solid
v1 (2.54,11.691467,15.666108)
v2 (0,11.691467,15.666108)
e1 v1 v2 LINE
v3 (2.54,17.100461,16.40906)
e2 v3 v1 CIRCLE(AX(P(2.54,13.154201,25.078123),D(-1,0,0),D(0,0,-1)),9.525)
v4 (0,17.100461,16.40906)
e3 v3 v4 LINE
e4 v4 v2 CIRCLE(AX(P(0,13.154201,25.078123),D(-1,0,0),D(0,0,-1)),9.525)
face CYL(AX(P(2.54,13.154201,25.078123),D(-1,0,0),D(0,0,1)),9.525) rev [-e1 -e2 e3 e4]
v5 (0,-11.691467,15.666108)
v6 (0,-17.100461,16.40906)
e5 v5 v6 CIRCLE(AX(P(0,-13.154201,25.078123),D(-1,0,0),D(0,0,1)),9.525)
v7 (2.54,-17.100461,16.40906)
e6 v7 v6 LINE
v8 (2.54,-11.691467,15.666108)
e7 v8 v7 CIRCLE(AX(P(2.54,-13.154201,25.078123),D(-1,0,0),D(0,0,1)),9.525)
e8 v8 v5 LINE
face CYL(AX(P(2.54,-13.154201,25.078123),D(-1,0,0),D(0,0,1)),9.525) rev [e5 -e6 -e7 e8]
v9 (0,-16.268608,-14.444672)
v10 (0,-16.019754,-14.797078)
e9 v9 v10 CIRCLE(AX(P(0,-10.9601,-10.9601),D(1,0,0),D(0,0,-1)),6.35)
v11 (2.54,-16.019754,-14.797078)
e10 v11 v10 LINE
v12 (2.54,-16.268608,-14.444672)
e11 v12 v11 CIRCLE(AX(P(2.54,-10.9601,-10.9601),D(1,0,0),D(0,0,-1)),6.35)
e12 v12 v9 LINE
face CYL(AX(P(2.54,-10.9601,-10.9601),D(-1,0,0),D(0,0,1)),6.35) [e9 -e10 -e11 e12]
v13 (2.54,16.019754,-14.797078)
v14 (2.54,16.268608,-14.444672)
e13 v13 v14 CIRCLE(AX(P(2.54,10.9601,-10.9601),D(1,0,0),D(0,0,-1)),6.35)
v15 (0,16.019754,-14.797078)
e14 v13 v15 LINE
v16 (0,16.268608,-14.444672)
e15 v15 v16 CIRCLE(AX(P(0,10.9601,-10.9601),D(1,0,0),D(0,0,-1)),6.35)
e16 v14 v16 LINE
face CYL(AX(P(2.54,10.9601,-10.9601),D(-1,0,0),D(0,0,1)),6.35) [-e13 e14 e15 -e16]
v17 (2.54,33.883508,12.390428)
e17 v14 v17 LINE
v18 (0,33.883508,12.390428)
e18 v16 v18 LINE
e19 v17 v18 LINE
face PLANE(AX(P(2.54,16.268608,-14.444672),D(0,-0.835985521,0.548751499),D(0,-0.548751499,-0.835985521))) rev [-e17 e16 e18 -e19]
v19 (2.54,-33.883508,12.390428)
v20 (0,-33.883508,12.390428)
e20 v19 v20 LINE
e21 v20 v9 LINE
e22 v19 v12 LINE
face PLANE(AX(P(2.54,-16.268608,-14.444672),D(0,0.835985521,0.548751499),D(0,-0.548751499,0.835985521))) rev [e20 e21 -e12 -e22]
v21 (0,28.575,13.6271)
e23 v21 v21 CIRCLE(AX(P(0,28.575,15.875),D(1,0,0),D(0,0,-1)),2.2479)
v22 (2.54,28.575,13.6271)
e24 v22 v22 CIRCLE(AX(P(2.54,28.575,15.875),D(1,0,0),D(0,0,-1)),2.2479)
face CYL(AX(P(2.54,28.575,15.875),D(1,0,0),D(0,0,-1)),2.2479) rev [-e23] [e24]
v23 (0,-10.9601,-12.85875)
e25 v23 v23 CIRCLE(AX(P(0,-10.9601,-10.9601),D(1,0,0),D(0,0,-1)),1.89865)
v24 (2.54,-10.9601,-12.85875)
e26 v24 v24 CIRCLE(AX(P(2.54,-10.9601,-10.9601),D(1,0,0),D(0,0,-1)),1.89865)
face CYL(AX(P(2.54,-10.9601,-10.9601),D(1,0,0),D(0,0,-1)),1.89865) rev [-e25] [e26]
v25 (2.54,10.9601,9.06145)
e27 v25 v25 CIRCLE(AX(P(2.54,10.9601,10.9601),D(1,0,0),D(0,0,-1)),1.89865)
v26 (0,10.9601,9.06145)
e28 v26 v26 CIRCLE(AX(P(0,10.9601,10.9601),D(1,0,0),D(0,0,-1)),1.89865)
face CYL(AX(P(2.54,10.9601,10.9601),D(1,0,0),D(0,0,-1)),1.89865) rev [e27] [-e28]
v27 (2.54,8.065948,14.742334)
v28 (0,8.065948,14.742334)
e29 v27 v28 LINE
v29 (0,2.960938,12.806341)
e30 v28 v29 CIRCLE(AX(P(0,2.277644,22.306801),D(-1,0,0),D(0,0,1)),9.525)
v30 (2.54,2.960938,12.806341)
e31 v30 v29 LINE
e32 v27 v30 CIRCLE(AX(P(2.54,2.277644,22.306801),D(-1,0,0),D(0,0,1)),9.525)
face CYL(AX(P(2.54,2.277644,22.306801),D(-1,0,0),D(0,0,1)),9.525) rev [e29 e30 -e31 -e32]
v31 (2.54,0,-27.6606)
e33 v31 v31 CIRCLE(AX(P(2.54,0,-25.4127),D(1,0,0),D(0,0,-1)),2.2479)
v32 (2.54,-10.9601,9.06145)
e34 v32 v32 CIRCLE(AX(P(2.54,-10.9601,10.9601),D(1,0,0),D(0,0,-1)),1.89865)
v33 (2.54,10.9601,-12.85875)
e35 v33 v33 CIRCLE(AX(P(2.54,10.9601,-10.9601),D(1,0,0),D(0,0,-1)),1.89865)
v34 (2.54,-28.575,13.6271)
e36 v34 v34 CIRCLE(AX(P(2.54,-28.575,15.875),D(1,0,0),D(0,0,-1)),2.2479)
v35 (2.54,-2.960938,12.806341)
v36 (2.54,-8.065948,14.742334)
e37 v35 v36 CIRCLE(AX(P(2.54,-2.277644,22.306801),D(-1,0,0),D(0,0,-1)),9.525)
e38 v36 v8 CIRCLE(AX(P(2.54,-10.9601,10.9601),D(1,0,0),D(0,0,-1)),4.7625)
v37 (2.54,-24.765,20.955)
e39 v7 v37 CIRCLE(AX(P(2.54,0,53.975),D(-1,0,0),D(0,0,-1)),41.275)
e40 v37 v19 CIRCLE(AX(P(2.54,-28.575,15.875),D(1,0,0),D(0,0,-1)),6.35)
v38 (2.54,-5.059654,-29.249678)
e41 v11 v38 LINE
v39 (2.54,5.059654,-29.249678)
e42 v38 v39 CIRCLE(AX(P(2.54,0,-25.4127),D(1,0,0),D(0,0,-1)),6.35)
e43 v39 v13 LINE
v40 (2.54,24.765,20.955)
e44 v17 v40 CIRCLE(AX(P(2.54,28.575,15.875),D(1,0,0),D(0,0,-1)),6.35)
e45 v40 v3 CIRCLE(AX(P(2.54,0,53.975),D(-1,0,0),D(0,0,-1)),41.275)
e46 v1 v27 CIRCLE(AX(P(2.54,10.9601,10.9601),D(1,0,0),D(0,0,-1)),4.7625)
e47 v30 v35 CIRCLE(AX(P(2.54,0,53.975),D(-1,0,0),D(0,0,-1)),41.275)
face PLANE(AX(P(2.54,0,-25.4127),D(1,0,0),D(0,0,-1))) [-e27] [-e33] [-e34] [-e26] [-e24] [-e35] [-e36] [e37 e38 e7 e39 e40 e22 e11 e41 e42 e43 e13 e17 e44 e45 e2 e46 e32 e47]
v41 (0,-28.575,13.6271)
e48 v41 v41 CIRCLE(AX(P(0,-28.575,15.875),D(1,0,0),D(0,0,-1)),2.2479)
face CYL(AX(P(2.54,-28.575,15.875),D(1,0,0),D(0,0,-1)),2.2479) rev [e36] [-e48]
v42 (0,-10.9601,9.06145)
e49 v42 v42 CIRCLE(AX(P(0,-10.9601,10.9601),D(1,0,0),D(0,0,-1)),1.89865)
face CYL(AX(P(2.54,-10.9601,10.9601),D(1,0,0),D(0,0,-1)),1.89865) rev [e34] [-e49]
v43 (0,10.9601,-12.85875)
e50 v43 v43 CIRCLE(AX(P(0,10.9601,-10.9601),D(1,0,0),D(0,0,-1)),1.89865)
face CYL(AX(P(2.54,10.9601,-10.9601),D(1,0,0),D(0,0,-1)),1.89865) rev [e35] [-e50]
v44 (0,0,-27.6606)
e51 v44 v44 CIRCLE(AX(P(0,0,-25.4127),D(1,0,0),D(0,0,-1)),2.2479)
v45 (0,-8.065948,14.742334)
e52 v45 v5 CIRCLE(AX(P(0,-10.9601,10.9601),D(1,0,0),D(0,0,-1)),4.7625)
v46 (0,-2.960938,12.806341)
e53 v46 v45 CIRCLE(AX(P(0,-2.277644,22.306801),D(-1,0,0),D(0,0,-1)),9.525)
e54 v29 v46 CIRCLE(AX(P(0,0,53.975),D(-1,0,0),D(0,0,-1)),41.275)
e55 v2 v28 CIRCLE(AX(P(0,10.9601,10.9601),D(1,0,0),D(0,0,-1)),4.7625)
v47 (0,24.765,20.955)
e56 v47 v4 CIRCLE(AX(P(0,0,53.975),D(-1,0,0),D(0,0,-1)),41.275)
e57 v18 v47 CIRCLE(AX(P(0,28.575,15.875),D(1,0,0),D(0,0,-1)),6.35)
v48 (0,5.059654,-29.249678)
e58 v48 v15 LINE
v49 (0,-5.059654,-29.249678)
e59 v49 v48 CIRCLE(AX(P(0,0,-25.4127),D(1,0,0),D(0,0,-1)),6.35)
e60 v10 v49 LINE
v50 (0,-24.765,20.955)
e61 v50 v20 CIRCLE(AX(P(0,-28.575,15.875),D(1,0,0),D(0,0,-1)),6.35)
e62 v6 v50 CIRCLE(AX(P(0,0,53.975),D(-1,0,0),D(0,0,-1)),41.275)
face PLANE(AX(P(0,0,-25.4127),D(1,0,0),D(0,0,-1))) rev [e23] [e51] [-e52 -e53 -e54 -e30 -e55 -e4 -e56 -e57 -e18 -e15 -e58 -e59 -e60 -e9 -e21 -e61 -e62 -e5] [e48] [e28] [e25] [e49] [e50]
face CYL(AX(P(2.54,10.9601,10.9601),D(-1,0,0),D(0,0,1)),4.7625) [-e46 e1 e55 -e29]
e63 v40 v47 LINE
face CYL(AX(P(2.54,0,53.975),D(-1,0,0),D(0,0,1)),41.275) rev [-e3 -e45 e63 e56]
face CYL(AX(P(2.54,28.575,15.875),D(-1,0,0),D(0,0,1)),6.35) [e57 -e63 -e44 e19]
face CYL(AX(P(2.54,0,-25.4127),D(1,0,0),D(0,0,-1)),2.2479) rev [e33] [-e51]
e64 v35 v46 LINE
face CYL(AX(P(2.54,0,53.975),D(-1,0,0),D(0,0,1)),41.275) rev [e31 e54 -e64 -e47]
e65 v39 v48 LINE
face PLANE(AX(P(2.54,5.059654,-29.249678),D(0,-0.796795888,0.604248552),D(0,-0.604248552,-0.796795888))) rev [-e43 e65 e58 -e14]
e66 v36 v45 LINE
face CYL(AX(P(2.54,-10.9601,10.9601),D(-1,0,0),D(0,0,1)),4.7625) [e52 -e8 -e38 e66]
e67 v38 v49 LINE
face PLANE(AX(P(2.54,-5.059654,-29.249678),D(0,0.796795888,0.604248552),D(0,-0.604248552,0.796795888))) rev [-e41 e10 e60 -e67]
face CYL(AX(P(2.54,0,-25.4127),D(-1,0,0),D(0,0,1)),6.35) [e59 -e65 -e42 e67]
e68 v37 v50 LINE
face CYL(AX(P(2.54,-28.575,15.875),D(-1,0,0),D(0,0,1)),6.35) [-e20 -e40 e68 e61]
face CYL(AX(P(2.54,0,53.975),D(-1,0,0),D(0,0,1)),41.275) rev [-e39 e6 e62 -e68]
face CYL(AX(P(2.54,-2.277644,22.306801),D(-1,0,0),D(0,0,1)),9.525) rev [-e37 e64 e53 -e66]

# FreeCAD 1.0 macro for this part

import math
import FreeCAD as App
import Part
import Sketcher
Q = App.Units.Quantity

doc = App.newDocument("Part")
body = doc.addObject("PartDesign::Body", "Body")

# Sketch on YZ plane
sketch1 = doc.addObject("Sketcher::SketchObject", "Sketch")
body.addObject(sketch1)
sketch1.AttachmentSupport = (doc.YZ_Plane, [""])
sketch1.MapMode = "FlatFace"
sketch1.addGeometry([
    Part.LineSegment(App.Vector(5.06, -29.25, 0), App.Vector(16.02, -14.8, 0)),  # 0
    Part.ArcOfCircle(Part.Circle(App.Vector(10.96, -10.96, 0), App.Vector(0, 0, 1), 6.35), math.radians(-37.17), math.radians(-33.28)),  # 1
    Part.LineSegment(App.Vector(16.27, -14.44, 0), App.Vector(33.88, 12.39, 0)),  # 2
    Part.ArcOfCircle(Part.Circle(App.Vector(28.57, 15.88, 0), App.Vector(0, 0, 1), 6.35), math.radians(-33), math.radians(127)),  # 3
    Part.ArcOfCircle(Part.Circle(App.Vector(0, 53.98, 0), App.Vector(0, 0, 1), 41.28), math.radians(-65.52), math.radians(-53.13)),  # 4
    Part.ArcOfCircle(Part.Circle(App.Vector(13.15, 25.08, 0), App.Vector(0, 0, 1), 9.53), math.radians(-99), math.radians(-66)),  # 5
    Part.ArcOfCircle(Part.Circle(App.Vector(10.96, 10.96, 0), App.Vector(0, 0, 1), 4.76), math.radians(81), math.radians(127)),  # 6
    Part.ArcOfCircle(Part.Circle(App.Vector(2.28, 22.31, 0), App.Vector(0, 0, 1), 9.53), math.radians(-86), math.radians(-53)),  # 7
    Part.ArcOfCircle(Part.Circle(App.Vector(0, 53.98, 0), App.Vector(0, 0, 1), 41.28), math.radians(-94.11), math.radians(-85.89)),  # 8
    Part.ArcOfCircle(Part.Circle(App.Vector(-2.28, 22.31, 0), App.Vector(0, 0, 1), 9.53), math.radians(-127), math.radians(-94)),  # 9
    Part.ArcOfCircle(Part.Circle(App.Vector(-10.96, 10.96, 0), App.Vector(0, 0, 1), 4.76), math.radians(53), math.radians(99)),  # 10
    Part.ArcOfCircle(Part.Circle(App.Vector(-13.15, 25.08, 0), App.Vector(0, 0, 1), 9.53), math.radians(-114), math.radians(-81)),  # 11
    Part.ArcOfCircle(Part.Circle(App.Vector(0, 53.98, 0), App.Vector(0, 0, 1), 41.28), math.radians(-126.87), math.radians(-114.48)),  # 12
    Part.ArcOfCircle(Part.Circle(App.Vector(-28.57, 15.88, 0), App.Vector(0, 0, 1), 6.35), math.radians(53), math.radians(213)),  # 13
    Part.LineSegment(App.Vector(-33.88, 12.39, 0), App.Vector(-16.27, -14.44, 0)),  # 14
    Part.ArcOfCircle(Part.Circle(App.Vector(-10.96, -10.96, 0), App.Vector(0, 0, 1), 6.35), math.radians(-146.72), math.radians(-142.83)),  # 15
    Part.LineSegment(App.Vector(-16.02, -14.8, 0), App.Vector(-5.06, -29.25, 0)),  # 16
    Part.ArcOfCircle(Part.Circle(App.Vector(0, -25.41, 0), App.Vector(0, 0, 1), 6.35), math.radians(-143), math.radians(-37)),  # 17
], False)
sketch1.addConstraint([
    Sketcher.Constraint("Tangent", 0, 2, 1, 1),
    Sketcher.Constraint("Tangent", 1, 2, 2, 1),
    Sketcher.Constraint("Tangent", 2, 2, 3, 1),
    Sketcher.Constraint("Tangent", 3, 2, 4, 2),
    Sketcher.Constraint("Tangent", 4, 1, 5, 2),
    Sketcher.Constraint("Tangent", 5, 1, 6, 1),
    Sketcher.Constraint("Tangent", 6, 2, 7, 2),
    Sketcher.Constraint("Tangent", 7, 1, 8, 2),
    Sketcher.Constraint("Tangent", 8, 1, 9, 2),
    Sketcher.Constraint("Tangent", 9, 1, 10, 1),
    Sketcher.Constraint("Tangent", 10, 2, 11, 2),
    Sketcher.Constraint("Tangent", 11, 1, 12, 2),
    Sketcher.Constraint("Tangent", 12, 1, 13, 1),
    Sketcher.Constraint("Tangent", 13, 2, 14, 1),
    Sketcher.Constraint("Tangent", 14, 2, 15, 1),
    Sketcher.Constraint("Tangent", 15, 2, 16, 1),
    Sketcher.Constraint("Tangent", 16, 2, 17, 1),
    Sketcher.Constraint("Tangent", 17, 2, 0, 1),
    Sketcher.Constraint("Coincident", 8, 3, 4, 3),
    Sketcher.Constraint("Coincident", 12, 3, 4, 3),
    Sketcher.Constraint("Equal", 1, 3),
    Sketcher.Constraint("Equal", 5, 7),
    Sketcher.Constraint("Equal", 4, 8),
    Sketcher.Constraint("Equal", 7, 9),
    Sketcher.Constraint("Equal", 6, 10),
    Sketcher.Constraint("Equal", 9, 11),
    Sketcher.Constraint("Equal", 8, 12),
    Sketcher.Constraint("Equal", 3, 13),
    Sketcher.Constraint("Equal", 13, 15),
    Sketcher.Constraint("Equal", 15, 17),
    Sketcher.Constraint("Symmetric", 1, 3, 10, 3, -1, 1),
    Sketcher.Constraint("Symmetric", 6, 3, 15, 3, -1, 1),
    Sketcher.Constraint("Symmetric", 7, 3, 9, 3, -2),
    Sketcher.Constraint("Symmetric", 2, 2, 13, 2, -2),
    Sketcher.Constraint("PointOnObject", 17, 3, -2),
    Sketcher.Constraint("Radius", 1, Q("0.25 in")),
    Sketcher.Constraint("Radius", 4, Q("1.625 in")),
    Sketcher.Constraint("Radius", 5, Q("0.375 in")),
    Sketcher.Constraint("Radius", 6, Q("0.1875 in")),
    Sketcher.Constraint("DistanceY", 3, 3, 4, 3, Q("1.5 in")),
    Sketcher.Constraint("DistanceY", -1, 1, 3, 3, Q("0.625 in")),
    Sketcher.Constraint("DistanceY", 1, 3, 6, 3, Q("0.863 in")),
    Sketcher.Constraint("DistanceX", 10, 3, 6, 3, Q("0.863 in")),
    Sketcher.Constraint("DistanceY", 17, 3, 1, 3, Q("0.569 in")),
])
pad1 = doc.addObject("PartDesign::Pad", "Pad")
body.addObject(pad1)
pad1.Profile = sketch1
pad1.Length = Q("0.1 in")

# Sketch on YZ plane
sketch2 = doc.addObject("Sketcher::SketchObject", "Sketch001")
body.addObject(sketch2)
sketch2.AttachmentSupport = (doc.YZ_Plane, [""])
sketch2.MapMode = "FlatFace"
sketch2.AttachmentOffset = App.Placement(App.Vector(0, 0, 0.1 * 25.4), App.Rotation())
sketch2.addGeometry([
    Part.Circle(App.Vector(28.6, 15.9, 0), App.Vector(0, 0, 1), 2.2),
    Part.Circle(App.Vector(0, -25.4, 0), App.Vector(0, 0, 1), 2.2),
    Part.Circle(App.Vector(-28.6, 15.9, 0), App.Vector(0, 0, 1), 2.2),
], False)
sketch2.addConstraint([
    Sketcher.Constraint("Equal", 0, 1),
    Sketcher.Constraint("Equal", 1, 2),
    Sketcher.Constraint("Symmetric", 0, 3, 2, 3, -2),
    Sketcher.Constraint("PointOnObject", 1, 3, -2),
    Sketcher.Constraint("Diameter", 0, Q("0.177 in")),
    Sketcher.Constraint("DistanceX", 2, 3, 0, 3, Q("2.25 in")),
    Sketcher.Constraint("DistanceY", -1, 1, 0, 3, Q("0.625 in")),
    Sketcher.Constraint("DistanceY", 1, 3, -1, 1, Q("1.0005 in")),
])
doc.recompute()
hole = doc.addObject("PartDesign::Hole", "Hole")
body.addObject(hole)
hole.Profile = sketch2
hole.ThreadType = "None"
hole.Diameter = Q("0.177 in")
hole.DepthType = "ThroughAll"

# Sketch on YZ plane
sketch3 = doc.addObject("Sketcher::SketchObject", "Sketch002")
body.addObject(sketch3)
sketch3.AttachmentSupport = (doc.YZ_Plane, [""])
sketch3.MapMode = "FlatFace"
sketch3.AttachmentOffset = App.Placement(App.Vector(0, 0, 0.1 * 25.4), App.Rotation())
sketch3.addGeometry([
    Part.Circle(App.Vector(11, 11, 0), App.Vector(0, 0, 1), 1.9),
    Part.Circle(App.Vector(11, -11, 0), App.Vector(0, 0, 1), 1.9),
    Part.Circle(App.Vector(-11, 11, 0), App.Vector(0, 0, 1), 1.9),
    Part.Circle(App.Vector(-11, -11, 0), App.Vector(0, 0, 1), 1.9),
], False)
sketch3.addConstraint([
    Sketcher.Constraint("Equal", 0, 1),
    Sketcher.Constraint("Equal", 1, 2),
    Sketcher.Constraint("Equal", 2, 3),
    Sketcher.Constraint("Symmetric", 1, 3, 2, 3, -1, 1),
    Sketcher.Constraint("Symmetric", 0, 3, 3, 3, -1, 1),
    Sketcher.Constraint("Symmetric", 0, 3, 2, 3, -2),
    Sketcher.Constraint("Diameter", 0, Q("0.1495 in")),
    Sketcher.Constraint("DistanceY", 1, 3, 0, 3, Q("0.863 in")),
    Sketcher.Constraint("DistanceX", 2, 3, 0, 3, Q("0.863 in")),
])
doc.recompute()
hole2 = doc.addObject("PartDesign::Hole", "Hole001")
body.addObject(hole2)
hole2.Profile = sketch3
hole2.ThreadType = "None"
hole2.Diameter = Q("0.1495 in")
hole2.DepthType = "ThroughAll"

doc.recompute()
